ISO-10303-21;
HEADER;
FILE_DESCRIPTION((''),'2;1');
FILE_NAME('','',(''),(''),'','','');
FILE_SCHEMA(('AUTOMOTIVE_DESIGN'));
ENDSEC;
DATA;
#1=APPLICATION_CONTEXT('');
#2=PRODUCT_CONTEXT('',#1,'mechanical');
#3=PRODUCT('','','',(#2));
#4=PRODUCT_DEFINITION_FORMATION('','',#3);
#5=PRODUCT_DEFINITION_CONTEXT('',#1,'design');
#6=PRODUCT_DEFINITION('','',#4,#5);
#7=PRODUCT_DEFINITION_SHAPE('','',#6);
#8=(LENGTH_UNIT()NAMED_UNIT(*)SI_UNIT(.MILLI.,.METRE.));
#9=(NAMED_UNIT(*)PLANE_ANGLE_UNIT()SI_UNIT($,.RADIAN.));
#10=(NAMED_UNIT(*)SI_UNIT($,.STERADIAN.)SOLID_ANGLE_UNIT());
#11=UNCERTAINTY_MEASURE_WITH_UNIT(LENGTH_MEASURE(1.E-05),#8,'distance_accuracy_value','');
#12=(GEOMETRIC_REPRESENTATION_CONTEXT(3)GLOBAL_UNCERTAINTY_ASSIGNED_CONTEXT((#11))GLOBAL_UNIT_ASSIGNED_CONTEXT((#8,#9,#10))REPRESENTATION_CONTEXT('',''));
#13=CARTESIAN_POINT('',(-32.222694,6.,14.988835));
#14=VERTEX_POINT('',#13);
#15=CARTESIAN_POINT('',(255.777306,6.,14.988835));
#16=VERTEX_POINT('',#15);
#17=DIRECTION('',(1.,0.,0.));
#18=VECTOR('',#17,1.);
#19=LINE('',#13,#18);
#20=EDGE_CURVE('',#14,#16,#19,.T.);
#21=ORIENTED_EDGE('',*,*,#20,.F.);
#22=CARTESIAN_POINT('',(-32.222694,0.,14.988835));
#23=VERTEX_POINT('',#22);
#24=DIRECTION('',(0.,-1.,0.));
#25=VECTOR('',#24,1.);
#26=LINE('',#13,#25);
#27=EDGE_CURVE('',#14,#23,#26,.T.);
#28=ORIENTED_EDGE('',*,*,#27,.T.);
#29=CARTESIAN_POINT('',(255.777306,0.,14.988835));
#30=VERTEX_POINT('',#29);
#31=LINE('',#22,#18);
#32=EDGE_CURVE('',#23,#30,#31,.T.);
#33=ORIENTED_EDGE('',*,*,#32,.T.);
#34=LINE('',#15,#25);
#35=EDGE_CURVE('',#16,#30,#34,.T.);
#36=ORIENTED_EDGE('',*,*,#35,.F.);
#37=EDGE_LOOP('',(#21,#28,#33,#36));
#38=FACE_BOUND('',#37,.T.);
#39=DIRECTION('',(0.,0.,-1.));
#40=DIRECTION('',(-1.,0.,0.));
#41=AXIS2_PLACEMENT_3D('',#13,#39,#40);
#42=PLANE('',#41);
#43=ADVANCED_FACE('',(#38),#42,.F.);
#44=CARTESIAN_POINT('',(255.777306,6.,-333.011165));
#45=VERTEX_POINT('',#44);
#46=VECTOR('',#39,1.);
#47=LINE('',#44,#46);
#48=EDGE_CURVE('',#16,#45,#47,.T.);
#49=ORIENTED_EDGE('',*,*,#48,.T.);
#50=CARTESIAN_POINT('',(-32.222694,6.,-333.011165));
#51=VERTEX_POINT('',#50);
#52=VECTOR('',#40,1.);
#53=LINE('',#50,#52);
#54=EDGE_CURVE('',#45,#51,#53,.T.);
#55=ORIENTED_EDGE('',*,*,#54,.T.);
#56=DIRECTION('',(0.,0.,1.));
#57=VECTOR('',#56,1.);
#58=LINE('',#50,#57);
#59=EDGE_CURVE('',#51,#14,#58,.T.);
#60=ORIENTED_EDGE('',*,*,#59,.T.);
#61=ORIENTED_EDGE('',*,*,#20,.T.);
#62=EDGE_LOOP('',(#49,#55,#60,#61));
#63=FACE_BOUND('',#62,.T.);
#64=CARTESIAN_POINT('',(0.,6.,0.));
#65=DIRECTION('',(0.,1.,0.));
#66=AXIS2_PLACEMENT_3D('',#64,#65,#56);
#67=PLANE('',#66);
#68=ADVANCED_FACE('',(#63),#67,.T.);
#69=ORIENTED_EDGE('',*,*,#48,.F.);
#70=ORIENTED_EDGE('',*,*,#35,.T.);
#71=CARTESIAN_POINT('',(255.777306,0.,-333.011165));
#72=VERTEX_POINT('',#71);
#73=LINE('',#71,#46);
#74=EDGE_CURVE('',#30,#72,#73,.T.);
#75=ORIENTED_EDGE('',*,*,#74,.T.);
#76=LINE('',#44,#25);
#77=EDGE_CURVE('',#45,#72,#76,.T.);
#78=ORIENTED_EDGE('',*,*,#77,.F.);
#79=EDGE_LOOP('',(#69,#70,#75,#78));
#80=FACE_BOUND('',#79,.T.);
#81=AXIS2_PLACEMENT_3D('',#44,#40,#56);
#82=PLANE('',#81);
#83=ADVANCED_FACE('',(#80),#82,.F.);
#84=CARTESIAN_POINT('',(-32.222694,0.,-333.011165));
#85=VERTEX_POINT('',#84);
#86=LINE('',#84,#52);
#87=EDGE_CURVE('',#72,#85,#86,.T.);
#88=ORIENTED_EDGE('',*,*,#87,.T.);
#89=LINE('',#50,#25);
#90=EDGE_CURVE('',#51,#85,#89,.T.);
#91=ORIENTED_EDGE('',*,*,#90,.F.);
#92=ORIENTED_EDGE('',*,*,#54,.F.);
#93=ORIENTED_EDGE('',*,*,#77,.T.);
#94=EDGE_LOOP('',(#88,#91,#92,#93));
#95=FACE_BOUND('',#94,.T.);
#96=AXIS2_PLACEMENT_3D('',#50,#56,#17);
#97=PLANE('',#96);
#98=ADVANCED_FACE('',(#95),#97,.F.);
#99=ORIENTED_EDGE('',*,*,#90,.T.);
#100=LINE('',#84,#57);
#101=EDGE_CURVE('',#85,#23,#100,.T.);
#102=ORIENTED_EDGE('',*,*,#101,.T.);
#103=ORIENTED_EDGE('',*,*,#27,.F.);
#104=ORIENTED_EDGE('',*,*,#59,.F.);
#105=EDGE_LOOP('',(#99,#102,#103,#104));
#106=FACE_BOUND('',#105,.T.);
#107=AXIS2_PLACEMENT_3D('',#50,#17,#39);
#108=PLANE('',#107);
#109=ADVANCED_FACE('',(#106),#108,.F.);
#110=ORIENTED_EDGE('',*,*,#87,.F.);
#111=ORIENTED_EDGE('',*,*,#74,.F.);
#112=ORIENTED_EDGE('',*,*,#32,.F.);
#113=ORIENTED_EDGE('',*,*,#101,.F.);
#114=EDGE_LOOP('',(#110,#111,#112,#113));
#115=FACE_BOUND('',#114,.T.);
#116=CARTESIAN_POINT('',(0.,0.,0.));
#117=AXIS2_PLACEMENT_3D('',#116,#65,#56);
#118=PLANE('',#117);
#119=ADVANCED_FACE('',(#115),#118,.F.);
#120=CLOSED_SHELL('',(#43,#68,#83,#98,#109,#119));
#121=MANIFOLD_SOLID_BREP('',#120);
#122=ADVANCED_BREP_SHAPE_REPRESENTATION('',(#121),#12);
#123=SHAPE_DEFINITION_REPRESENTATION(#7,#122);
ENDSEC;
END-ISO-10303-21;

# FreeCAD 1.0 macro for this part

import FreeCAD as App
import Part
import Sketcher

V = App.Vector
Q = App.Units.Quantity

doc = App.newDocument("Part")
body = doc.addObject("PartDesign::Body", "Body")

sketch1 = doc.addObject("Sketcher::SketchObject", "Sketch")
body.addObject(sketch1)
sketch1.AttachmentSupport = (doc.XZ_Plane, [""])
sketch1.MapMode = "FlatFace"
sketch1.addGeometry(Part.LineSegment(V(-32.222694, -333.011165, 0), V(-32.222694, 14.988835, 0)), False)
sketch1.addGeometry(Part.LineSegment(V(-32.222694, 14.988835, 0), V(255.777306, 14.988835, 0)), False)
sketch1.addGeometry(Part.LineSegment(V(255.777306, 14.988835, 0), V(255.777306, -333.011165, 0)), False)
sketch1.addGeometry(Part.LineSegment(V(255.777306, -333.011165, 0), V(-32.222694, -333.011165, 0)), False)
sketch1.addConstraint(Sketcher.Constraint("Coincident", 0, 2, 1, 1))
sketch1.addConstraint(Sketcher.Constraint("Coincident", 1, 2, 2, 1))
sketch1.addConstraint(Sketcher.Constraint("Coincident", 2, 2, 3, 1))
sketch1.addConstraint(Sketcher.Constraint("Coincident", 3, 2, 0, 1))
sketch1.addConstraint(Sketcher.Constraint("Vertical", 0))
sketch1.addConstraint(Sketcher.Constraint("Horizontal", 1))
sketch1.addConstraint(Sketcher.Constraint("Vertical", 2))
sketch1.addConstraint(Sketcher.Constraint("Horizontal", 3))
sketch1.addConstraint(Sketcher.Constraint("DistanceX", 1, 1, 1, 2, Q("288 mm")))
sketch1.addConstraint(Sketcher.Constraint("DistanceY", 0, 1, 0, 2, Q("348 mm")))
sketch1.addConstraint(Sketcher.Constraint("DistanceX", 0, 2, -1, 1, Q("32.222694 mm")))
sketch1.addConstraint(Sketcher.Constraint("DistanceY", -1, 1, 0, 2, Q("14.988835 mm")))
pad1 = doc.addObject("PartDesign::Pad", "Pad")
body.addObject(pad1)
pad1.Profile = sketch1
pad1.Length = 6
pad1.Reversed = True

doc.recompute()
